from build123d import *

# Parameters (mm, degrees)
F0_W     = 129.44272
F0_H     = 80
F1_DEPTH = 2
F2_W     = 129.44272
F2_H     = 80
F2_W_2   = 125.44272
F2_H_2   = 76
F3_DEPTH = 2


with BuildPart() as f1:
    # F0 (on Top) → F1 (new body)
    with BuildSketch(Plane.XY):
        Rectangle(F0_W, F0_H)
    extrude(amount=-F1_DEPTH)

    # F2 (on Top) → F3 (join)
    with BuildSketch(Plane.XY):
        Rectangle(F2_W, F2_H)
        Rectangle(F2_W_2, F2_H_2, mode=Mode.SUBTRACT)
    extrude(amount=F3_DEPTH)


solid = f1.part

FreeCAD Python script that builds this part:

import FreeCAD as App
import Part
import Sketcher
from FreeCAD import Vector
Q = App.Units.Quantity

doc = App.newDocument("Part")
body = doc.addObject("PartDesign::Body", "Body")

sketch1 = body.newObject("Sketcher::SketchObject", "Sketch")
sketch1.AttachmentSupport = (doc.getObject("XY_Plane"), [""])
sketch1.MapMode = "FlatFace"
sketch1.addGeometry(Part.LineSegment(Vector(-65, 40, 0), Vector(-65, -40, 0)), False)
sketch1.addGeometry(Part.LineSegment(Vector(-65, -40, 0), Vector(65, -40, 0)), False)
sketch1.addGeometry(Part.LineSegment(Vector(65, -40, 0), Vector(65, 40, 0)), False)
sketch1.addGeometry(Part.LineSegment(Vector(65, 40, 0), Vector(-65, 40, 0)), False)
sketch1.addConstraint(Sketcher.Constraint("Coincident", 0, 2, 1, 1))
sketch1.addConstraint(Sketcher.Constraint("Coincident", 1, 2, 2, 1))
sketch1.addConstraint(Sketcher.Constraint("Coincident", 2, 2, 3, 1))
sketch1.addConstraint(Sketcher.Constraint("Coincident", 3, 2, 0, 1))
sketch1.addConstraint(Sketcher.Constraint("Vertical", 0))
sketch1.addConstraint(Sketcher.Constraint("Horizontal", 1))
sketch1.addConstraint(Sketcher.Constraint("Vertical", 2))
sketch1.addConstraint(Sketcher.Constraint("Horizontal", 3))
sketch1.addConstraint(Sketcher.Constraint("Symmetric", 0, 2, 2, 2, -1, 1))
sketch1.addConstraint(Sketcher.Constraint("DistanceY", 0, 2, 0, 1, Q("80 mm")))
sketch1.addConstraint(Sketcher.Constraint("DistanceX", 1, 1, 1, 2, Q("129.44272 mm")))
pad1 = body.newObject("PartDesign::Pad", "Pad")
pad1.Profile = sketch1
pad1.Length = 2
pad1.Reversed = True

sketch2 = body.newObject("Sketcher::SketchObject", "Sketch001")
sketch2.AttachmentSupport = (doc.getObject("XY_Plane"), [""])
sketch2.MapMode = "FlatFace"
sketch2.addGeometry(Part.LineSegment(Vector(-65, 40, 0), Vector(-65, -40, 0)), False)
sketch2.addGeometry(Part.LineSegment(Vector(-65, -40, 0), Vector(65, -40, 0)), False)
sketch2.addGeometry(Part.LineSegment(Vector(65, -40, 0), Vector(65, 40, 0)), False)
sketch2.addGeometry(Part.LineSegment(Vector(65, 40, 0), Vector(-65, 40, 0)), False)
sketch2.addGeometry(Part.LineSegment(Vector(63, -38, 0), Vector(-63, -38, 0)), False)
sketch2.addGeometry(Part.LineSegment(Vector(-63, -38, 0), Vector(-63, 38, 0)), False)
sketch2.addGeometry(Part.LineSegment(Vector(-63, 38, 0), Vector(63, 38, 0)), False)
sketch2.addGeometry(Part.LineSegment(Vector(63, 38, 0), Vector(63, -38, 0)), False)
sketch2.addConstraint(Sketcher.Constraint("Coincident", 0, 2, 1, 1))
sketch2.addConstraint(Sketcher.Constraint("Coincident", 1, 2, 2, 1))
sketch2.addConstraint(Sketcher.Constraint("Coincident", 2, 2, 3, 1))
sketch2.addConstraint(Sketcher.Constraint("Coincident", 3, 2, 0, 1))
sketch2.addConstraint(Sketcher.Constraint("Coincident", 4, 2, 5, 1))
sketch2.addConstraint(Sketcher.Constraint("Coincident", 5, 2, 6, 1))
sketch2.addConstraint(Sketcher.Constraint("Coincident", 6, 2, 7, 1))
sketch2.addConstraint(Sketcher.Constraint("Coincident", 7, 2, 4, 1))
sketch2.addConstraint(Sketcher.Constraint("Vertical", 0))
sketch2.addConstraint(Sketcher.Constraint("Horizontal", 1))
sketch2.addConstraint(Sketcher.Constraint("Vertical", 2))
sketch2.addConstraint(Sketcher.Constraint("Horizontal", 3))
sketch2.addConstraint(Sketcher.Constraint("Horizontal", 4))
sketch2.addConstraint(Sketcher.Constraint("Vertical", 5))
sketch2.addConstraint(Sketcher.Constraint("Horizontal", 6))
sketch2.addConstraint(Sketcher.Constraint("Vertical", 7))
sketch2.addConstraint(Sketcher.Constraint("Symmetric", 0, 2, 2, 2, -1, 1))
sketch2.addConstraint(Sketcher.Constraint("Symmetric", 4, 2, 6, 2, -1, 1))
sketch2.addConstraint(Sketcher.Constraint("DistanceY", 0, 2, 0, 1, Q("80 mm")))
sketch2.addConstraint(Sketcher.Constraint("DistanceY", 5, 1, 5, 2, Q("76 mm")))
sketch2.addConstraint(Sketcher.Constraint("DistanceX", 0, 2, 4, 2, Q("2 mm")))
sketch2.addConstraint(Sketcher.Constraint("DistanceX", 1, 1, 1, 2, Q("129.44272 mm")))
pad2 = body.newObject("PartDesign::Pad", "Pad001")
pad2.Profile = sketch2
pad2.Length = 2

doc.recompute()
